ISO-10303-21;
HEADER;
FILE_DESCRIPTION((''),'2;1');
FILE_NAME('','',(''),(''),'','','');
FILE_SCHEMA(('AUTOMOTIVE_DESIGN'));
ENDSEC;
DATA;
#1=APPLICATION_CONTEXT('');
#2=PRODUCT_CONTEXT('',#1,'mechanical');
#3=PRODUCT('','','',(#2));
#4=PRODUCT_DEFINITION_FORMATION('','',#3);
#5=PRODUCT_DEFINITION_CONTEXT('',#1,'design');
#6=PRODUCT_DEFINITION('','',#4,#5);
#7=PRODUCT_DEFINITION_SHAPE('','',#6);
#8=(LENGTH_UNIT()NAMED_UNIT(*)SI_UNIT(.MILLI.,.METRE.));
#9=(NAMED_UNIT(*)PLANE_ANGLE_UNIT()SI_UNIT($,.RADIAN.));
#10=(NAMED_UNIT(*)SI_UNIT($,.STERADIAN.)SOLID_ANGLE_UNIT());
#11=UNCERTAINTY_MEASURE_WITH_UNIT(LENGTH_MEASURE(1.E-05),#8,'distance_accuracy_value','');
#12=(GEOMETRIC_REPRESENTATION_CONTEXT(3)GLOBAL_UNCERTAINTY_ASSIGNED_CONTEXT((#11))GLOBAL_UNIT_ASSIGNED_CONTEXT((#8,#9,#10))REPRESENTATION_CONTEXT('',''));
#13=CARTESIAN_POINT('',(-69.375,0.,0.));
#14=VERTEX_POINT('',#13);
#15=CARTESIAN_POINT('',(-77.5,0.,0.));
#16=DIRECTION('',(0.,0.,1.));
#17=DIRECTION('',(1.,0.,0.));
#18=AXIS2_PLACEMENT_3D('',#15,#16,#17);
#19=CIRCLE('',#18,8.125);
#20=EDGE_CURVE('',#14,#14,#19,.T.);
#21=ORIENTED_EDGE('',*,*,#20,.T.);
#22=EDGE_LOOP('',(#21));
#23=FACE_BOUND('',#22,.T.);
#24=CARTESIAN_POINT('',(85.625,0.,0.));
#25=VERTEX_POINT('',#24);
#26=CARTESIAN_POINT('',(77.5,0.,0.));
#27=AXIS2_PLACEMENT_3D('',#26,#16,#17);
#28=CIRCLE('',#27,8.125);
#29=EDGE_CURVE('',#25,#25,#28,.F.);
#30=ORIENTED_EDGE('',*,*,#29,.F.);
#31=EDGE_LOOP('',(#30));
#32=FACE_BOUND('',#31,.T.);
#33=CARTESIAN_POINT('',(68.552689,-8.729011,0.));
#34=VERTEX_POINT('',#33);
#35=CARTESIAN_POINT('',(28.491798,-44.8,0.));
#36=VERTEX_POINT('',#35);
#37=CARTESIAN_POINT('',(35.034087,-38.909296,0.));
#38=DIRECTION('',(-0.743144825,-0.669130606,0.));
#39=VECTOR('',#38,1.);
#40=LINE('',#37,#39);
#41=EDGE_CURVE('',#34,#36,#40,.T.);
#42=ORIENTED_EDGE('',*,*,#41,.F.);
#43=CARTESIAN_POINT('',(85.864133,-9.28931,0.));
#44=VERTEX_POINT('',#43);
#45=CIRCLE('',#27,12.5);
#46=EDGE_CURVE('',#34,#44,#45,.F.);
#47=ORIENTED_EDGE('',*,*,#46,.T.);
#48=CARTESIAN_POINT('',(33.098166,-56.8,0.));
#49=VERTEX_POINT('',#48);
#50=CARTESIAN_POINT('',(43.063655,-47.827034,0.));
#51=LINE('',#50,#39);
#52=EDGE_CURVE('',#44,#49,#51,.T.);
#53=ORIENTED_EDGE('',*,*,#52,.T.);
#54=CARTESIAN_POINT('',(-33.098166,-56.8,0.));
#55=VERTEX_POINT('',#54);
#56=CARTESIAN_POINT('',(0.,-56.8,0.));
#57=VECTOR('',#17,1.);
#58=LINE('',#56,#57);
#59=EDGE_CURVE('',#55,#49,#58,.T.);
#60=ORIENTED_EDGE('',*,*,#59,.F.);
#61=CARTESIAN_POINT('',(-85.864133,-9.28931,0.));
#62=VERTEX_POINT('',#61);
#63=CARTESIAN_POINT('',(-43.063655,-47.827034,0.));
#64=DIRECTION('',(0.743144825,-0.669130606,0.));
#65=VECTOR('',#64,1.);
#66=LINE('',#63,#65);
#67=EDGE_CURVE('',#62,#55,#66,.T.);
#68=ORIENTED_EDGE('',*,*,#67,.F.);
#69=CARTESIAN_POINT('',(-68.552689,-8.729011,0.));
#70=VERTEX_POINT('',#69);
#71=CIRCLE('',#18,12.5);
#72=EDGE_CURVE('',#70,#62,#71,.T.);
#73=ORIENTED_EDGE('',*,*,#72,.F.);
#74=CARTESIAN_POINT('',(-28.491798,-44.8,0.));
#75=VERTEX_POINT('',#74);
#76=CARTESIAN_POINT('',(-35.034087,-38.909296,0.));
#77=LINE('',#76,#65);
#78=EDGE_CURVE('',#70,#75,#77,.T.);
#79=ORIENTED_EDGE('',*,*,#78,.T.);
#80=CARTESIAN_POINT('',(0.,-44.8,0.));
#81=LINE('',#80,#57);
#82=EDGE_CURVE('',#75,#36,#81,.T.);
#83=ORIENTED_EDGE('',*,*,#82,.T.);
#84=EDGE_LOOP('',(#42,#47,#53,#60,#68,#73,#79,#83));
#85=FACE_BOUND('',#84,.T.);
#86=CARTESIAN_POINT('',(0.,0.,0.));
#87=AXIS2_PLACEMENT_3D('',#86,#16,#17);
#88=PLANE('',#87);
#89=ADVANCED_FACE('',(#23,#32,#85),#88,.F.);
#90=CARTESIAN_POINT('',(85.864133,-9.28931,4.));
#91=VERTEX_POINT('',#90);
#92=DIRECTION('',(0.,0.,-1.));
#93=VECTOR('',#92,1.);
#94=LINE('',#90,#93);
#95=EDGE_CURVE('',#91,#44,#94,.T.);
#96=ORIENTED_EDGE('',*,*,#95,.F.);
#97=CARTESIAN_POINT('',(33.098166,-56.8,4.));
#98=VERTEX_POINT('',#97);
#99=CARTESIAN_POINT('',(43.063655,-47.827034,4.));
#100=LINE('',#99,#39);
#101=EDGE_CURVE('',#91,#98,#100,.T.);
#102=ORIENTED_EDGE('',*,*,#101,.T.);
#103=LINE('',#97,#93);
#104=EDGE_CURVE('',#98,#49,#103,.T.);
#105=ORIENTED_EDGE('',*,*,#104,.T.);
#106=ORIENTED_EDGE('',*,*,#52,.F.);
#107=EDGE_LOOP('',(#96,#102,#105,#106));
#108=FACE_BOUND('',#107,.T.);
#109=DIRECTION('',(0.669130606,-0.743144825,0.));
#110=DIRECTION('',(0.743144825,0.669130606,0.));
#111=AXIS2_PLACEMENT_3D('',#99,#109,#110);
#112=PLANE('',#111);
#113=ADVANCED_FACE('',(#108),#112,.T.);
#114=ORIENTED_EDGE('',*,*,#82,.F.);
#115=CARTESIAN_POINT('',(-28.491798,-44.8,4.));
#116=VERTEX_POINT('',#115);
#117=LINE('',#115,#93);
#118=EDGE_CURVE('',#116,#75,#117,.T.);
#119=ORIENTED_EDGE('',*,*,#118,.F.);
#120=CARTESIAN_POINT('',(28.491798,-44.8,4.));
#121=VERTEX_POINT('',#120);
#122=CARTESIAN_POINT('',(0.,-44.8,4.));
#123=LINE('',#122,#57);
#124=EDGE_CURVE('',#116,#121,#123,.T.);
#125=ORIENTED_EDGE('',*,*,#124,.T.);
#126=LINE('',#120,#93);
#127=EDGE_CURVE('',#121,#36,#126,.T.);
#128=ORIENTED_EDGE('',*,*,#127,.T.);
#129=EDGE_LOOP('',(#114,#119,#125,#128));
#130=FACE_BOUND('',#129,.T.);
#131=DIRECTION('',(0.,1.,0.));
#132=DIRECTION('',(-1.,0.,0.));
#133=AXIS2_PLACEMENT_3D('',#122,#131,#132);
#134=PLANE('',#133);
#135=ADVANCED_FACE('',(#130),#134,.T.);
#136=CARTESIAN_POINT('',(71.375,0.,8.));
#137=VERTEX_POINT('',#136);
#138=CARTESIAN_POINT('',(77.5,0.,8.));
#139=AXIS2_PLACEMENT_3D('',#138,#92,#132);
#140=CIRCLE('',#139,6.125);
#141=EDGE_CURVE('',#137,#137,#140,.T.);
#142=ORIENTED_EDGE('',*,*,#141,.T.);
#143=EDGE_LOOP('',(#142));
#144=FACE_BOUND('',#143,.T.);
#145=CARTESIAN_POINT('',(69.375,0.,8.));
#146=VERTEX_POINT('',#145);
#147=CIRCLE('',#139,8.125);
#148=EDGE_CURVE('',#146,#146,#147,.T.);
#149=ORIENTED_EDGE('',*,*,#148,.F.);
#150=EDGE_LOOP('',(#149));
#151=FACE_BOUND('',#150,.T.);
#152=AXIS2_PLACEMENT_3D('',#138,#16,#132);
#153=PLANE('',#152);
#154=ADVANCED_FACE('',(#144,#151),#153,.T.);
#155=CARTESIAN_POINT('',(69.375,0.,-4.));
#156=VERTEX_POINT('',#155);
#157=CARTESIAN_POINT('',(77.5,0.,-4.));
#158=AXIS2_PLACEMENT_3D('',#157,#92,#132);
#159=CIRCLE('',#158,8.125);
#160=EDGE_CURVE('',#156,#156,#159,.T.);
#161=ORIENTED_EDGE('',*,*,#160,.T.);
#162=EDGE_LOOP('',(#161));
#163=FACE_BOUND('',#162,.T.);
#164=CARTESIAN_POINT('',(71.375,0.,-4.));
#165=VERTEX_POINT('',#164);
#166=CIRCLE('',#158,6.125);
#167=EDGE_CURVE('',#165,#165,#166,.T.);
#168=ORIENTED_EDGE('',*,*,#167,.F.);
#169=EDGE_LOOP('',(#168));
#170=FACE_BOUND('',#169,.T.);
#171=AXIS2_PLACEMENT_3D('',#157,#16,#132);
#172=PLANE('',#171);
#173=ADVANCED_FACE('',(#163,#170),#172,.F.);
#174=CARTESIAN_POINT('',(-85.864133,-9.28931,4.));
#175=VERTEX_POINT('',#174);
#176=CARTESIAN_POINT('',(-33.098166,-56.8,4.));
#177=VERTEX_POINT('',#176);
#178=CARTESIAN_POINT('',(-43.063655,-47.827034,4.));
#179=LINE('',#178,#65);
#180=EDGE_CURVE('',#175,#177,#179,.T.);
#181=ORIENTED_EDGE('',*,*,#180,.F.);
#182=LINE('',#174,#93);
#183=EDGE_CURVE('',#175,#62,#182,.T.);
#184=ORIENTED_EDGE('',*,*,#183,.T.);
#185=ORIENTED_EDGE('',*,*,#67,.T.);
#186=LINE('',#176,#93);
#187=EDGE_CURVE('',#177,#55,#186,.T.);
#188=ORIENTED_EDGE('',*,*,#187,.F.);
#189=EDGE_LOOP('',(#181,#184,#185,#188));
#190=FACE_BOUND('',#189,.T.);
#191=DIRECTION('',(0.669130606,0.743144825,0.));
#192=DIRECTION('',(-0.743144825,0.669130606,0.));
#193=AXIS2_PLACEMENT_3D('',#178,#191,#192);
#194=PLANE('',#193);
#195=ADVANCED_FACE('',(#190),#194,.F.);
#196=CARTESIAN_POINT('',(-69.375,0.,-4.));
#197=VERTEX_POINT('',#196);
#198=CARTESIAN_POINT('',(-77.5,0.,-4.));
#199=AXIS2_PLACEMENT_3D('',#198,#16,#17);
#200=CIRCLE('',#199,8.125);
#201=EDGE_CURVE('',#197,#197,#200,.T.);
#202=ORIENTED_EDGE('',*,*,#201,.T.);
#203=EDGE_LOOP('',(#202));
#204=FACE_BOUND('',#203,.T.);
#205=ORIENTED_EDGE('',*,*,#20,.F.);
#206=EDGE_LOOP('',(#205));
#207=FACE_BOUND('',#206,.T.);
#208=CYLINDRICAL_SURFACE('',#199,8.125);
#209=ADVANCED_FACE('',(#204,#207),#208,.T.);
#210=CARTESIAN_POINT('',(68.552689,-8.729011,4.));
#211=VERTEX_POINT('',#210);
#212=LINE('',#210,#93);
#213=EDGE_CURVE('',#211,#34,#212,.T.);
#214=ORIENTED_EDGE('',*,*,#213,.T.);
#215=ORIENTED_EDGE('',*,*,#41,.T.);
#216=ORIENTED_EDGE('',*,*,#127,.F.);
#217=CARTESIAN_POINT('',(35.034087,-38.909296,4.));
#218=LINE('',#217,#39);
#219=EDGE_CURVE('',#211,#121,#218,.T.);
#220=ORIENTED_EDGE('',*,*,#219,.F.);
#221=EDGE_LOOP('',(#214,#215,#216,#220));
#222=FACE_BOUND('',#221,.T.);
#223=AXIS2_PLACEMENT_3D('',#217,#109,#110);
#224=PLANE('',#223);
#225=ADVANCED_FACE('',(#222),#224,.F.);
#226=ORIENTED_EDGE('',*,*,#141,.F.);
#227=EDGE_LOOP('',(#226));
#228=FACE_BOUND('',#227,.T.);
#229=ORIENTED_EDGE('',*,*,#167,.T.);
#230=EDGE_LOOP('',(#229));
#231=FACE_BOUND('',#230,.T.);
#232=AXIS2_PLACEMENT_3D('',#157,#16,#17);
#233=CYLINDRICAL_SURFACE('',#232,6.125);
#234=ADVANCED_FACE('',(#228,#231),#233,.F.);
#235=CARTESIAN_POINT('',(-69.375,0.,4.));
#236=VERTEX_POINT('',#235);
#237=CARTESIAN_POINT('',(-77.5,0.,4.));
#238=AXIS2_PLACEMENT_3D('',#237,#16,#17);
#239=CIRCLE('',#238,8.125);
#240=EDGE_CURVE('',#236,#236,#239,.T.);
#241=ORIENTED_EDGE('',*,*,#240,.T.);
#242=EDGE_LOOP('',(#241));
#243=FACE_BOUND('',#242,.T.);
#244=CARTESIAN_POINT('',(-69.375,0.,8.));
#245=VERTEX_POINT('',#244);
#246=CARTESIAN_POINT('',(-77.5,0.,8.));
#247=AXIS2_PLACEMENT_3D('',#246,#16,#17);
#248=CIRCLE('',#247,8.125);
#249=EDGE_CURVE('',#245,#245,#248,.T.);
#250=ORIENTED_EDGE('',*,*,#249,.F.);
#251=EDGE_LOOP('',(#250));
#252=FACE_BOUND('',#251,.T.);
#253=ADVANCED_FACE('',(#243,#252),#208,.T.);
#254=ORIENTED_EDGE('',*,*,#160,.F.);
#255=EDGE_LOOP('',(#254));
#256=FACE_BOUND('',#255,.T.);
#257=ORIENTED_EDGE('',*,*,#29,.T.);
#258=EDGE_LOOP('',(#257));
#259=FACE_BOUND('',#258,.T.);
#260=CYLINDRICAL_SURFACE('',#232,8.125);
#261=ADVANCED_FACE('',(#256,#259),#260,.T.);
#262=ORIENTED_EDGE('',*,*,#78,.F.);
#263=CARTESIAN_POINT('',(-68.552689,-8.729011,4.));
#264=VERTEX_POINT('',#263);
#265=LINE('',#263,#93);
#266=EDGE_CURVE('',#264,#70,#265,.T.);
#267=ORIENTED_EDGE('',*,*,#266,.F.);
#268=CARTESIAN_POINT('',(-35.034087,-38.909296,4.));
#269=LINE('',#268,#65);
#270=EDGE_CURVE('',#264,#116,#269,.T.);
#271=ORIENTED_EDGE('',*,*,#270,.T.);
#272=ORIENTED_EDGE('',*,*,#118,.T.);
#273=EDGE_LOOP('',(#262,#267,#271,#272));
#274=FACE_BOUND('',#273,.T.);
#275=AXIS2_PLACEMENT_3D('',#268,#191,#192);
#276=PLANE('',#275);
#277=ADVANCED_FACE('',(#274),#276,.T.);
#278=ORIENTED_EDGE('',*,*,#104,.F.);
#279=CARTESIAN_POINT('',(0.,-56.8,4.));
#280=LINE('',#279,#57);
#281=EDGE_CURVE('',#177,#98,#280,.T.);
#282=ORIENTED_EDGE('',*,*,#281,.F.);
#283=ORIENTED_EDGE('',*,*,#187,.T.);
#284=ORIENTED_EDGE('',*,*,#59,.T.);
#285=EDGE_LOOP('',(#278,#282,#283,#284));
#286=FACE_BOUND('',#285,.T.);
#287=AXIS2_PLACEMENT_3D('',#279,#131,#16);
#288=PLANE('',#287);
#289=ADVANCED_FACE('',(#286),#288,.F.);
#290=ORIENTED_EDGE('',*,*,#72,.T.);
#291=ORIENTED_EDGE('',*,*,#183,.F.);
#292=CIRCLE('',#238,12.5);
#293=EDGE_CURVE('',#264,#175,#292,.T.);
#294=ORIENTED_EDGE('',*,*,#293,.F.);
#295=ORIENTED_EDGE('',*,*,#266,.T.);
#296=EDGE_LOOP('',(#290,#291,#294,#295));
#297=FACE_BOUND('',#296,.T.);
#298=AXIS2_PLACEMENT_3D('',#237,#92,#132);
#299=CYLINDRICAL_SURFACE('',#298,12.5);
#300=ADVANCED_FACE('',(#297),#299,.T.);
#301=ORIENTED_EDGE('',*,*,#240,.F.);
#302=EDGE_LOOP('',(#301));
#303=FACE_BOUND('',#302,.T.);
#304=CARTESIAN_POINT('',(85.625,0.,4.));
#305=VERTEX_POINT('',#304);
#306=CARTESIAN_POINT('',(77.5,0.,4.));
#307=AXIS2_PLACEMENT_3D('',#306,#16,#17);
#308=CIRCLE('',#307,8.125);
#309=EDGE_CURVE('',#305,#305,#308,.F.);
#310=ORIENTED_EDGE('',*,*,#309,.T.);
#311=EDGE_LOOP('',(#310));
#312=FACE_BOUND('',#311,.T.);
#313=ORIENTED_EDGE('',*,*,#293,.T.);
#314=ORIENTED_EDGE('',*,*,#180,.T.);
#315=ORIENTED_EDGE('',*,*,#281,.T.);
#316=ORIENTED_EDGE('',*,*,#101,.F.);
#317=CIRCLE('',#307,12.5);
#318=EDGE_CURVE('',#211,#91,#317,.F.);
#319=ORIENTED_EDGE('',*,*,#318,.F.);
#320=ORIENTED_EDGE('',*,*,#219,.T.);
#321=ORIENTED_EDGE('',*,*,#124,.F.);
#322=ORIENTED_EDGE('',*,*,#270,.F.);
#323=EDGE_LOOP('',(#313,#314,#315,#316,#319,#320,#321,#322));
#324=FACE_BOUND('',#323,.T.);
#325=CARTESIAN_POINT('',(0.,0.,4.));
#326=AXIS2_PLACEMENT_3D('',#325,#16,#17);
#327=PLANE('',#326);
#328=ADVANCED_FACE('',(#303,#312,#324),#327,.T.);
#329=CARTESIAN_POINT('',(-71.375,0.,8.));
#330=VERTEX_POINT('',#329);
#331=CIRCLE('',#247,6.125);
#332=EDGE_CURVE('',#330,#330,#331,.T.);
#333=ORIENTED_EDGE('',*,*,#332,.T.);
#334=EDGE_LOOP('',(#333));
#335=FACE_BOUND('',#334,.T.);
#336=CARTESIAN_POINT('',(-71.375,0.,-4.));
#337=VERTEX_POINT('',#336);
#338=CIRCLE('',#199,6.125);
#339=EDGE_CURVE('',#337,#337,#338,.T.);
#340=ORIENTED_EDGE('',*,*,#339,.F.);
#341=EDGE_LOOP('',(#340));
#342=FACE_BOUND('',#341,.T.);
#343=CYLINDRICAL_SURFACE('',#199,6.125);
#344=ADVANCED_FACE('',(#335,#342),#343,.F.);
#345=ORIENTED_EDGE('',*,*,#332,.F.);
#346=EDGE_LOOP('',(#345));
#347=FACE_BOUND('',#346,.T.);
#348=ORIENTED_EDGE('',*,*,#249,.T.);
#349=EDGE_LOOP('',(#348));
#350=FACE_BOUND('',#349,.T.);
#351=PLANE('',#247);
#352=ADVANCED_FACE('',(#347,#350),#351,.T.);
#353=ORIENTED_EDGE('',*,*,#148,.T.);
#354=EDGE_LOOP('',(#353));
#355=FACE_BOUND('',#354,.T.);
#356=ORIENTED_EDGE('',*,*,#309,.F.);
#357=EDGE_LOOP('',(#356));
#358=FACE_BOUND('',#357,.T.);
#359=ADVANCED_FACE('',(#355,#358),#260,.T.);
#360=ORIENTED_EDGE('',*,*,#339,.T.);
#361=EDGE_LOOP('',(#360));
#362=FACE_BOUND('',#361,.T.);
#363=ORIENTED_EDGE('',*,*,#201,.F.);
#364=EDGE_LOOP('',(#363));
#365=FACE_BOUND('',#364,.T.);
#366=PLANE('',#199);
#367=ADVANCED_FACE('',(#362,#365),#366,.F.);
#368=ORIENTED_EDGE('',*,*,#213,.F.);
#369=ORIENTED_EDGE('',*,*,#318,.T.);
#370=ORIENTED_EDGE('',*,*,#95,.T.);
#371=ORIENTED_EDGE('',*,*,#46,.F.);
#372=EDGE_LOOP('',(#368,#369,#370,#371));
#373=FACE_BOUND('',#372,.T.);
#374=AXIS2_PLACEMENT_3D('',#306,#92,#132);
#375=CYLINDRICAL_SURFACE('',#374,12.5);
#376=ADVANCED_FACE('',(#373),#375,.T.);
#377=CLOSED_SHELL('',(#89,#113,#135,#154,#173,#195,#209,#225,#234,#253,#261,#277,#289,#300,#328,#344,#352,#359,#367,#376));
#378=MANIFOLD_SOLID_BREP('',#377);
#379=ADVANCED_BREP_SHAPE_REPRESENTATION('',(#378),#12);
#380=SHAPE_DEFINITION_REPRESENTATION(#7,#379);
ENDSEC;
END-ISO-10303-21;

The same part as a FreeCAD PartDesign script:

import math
import FreeCAD as App
import Part
import Sketcher
from FreeCAD import Vector
Q = App.Units.Quantity

doc = App.newDocument("Part")
body = doc.addObject("PartDesign::Body", "Body")

sketch1 = body.newObject("Sketcher::SketchObject", "Sketch")
sketch1.AttachmentSupport = (doc.getObject("XY_Plane"), [""])
sketch1.MapMode = "FlatFace"
sketch1.addGeometry([
    Part.LineSegment(Vector(33, -57, 0), Vector(86, -9, 0)),
    Part.ArcOfCircle(Part.Circle(Vector(78, 0, 0), Vector(0, 0, 1), 12), math.radians(-48), math.radians(224)),
    Part.LineSegment(Vector(69, -9, 0), Vector(28, -45, 0)),
    Part.LineSegment(Vector(28, -45, 0), Vector(-28, -45, 0)),
    Part.LineSegment(Vector(-28, -45, 0), Vector(-69, -9, 0)),
    Part.ArcOfCircle(Part.Circle(Vector(-78, 0, 0), Vector(0, 0, 1), 12), math.radians(-44), math.radians(228)),
    Part.LineSegment(Vector(-86, -9, 0), Vector(-33, -57, 0)),
    Part.LineSegment(Vector(-33, -57, 0), Vector(33, -57, 0)),
    Part.Circle(Vector(78, 0, 0), Vector(0, 0, 1), 6),
    Part.Circle(Vector(-78, 0, 0), Vector(0, 0, 1), 6),
], False)
sketch1.addConstraint([
    Sketcher.Constraint("Tangent", 0, 2, 1, 1),
    Sketcher.Constraint("Coincident", 1, 2, 2, 1),
    Sketcher.Constraint("Coincident", 2, 2, 3, 1),
    Sketcher.Constraint("Coincident", 3, 2, 4, 1),
    Sketcher.Constraint("Coincident", 4, 2, 5, 1),
    Sketcher.Constraint("Tangent", 5, 2, 6, 1),
    Sketcher.Constraint("Coincident", 6, 2, 7, 1),
    Sketcher.Constraint("Coincident", 7, 2, 0, 1),
    Sketcher.Constraint("Horizontal", 3),
    Sketcher.Constraint("Horizontal", 7),
    Sketcher.Constraint("Coincident", 8, 3, 1, 3),
    Sketcher.Constraint("Coincident", 9, 3, 5, 3),
    Sketcher.Constraint("Equal", 1, 5),
    Sketcher.Constraint("Equal", 8, 9),
    Sketcher.Constraint("Symmetric", 1, 3, 5, 3, -1, 1),
    Sketcher.Constraint("Symmetric", 1, 2, 4, 2, -2),
    Sketcher.Constraint("Parallel", 0, 2),
    Sketcher.Constraint("Parallel", 4, 6),
    Sketcher.Constraint("Horizontal", 0, 2, 5, 2),
    Sketcher.Constraint("Diameter", 8, Q("12.5 mm")),
    Sketcher.Constraint("Radius", 1, Q("12.5 mm")),
    Sketcher.Constraint("Angle", 0, Q("42 deg")),
    Sketcher.Constraint("DistanceX", 5, 3, 1, 3, Q("155 mm")),
    Sketcher.Constraint("DistanceY", 6, 2, 3, 2, Q("12 mm")),
    Sketcher.Constraint("DistanceY", 2, 2, -1, 1, Q("44.8 mm")),
    Sketcher.Constraint("DistanceY", 0, 2, 1, 2, Q("0.560299 mm")),
])
pad1 = body.newObject("PartDesign::Pad", "Pad")
pad1.Profile = sketch1
pad1.Length = 4

sketch2 = body.newObject("Sketcher::SketchObject", "Sketch001")
sketch2.AttachmentSupport = (doc.getObject("XY_Plane"), [""])
sketch2.MapMode = "FlatFace"
sketch2.AttachmentOffset = App.Placement(Vector(0, 0, -4), App.Rotation())
sketch2.addGeometry([
    Part.Circle(Vector(-78, 0, 0), Vector(0, 0, 1), 8),
    Part.Circle(Vector(-78, 0, 0), Vector(0, 0, 1), 6),
], False)
sketch2.addConstraint([
    Sketcher.Constraint("Coincident", 1, 3, 0, 3),
    Sketcher.Constraint("PointOnObject", 0, 3, -1),
    Sketcher.Constraint("Diameter", 0, Q("16.25 mm")),
    Sketcher.Constraint("Diameter", 1, Q("12.25 mm")),
    Sketcher.Constraint("DistanceX", 0, 3, -1, 1, Q("77.5 mm")),
])
pad2 = body.newObject("PartDesign::Pad", "Pad001")
pad2.Profile = sketch2
pad2.Length = 12
doc.recompute()

mirrored = body.newObject("PartDesign::Mirrored", "Mirrored")
mirrored.Originals = [pad2]
mirrored.MirrorPlane = (doc.getObject("YZ_Plane"), [""])
body.Tip = mirrored

doc.recompute()
